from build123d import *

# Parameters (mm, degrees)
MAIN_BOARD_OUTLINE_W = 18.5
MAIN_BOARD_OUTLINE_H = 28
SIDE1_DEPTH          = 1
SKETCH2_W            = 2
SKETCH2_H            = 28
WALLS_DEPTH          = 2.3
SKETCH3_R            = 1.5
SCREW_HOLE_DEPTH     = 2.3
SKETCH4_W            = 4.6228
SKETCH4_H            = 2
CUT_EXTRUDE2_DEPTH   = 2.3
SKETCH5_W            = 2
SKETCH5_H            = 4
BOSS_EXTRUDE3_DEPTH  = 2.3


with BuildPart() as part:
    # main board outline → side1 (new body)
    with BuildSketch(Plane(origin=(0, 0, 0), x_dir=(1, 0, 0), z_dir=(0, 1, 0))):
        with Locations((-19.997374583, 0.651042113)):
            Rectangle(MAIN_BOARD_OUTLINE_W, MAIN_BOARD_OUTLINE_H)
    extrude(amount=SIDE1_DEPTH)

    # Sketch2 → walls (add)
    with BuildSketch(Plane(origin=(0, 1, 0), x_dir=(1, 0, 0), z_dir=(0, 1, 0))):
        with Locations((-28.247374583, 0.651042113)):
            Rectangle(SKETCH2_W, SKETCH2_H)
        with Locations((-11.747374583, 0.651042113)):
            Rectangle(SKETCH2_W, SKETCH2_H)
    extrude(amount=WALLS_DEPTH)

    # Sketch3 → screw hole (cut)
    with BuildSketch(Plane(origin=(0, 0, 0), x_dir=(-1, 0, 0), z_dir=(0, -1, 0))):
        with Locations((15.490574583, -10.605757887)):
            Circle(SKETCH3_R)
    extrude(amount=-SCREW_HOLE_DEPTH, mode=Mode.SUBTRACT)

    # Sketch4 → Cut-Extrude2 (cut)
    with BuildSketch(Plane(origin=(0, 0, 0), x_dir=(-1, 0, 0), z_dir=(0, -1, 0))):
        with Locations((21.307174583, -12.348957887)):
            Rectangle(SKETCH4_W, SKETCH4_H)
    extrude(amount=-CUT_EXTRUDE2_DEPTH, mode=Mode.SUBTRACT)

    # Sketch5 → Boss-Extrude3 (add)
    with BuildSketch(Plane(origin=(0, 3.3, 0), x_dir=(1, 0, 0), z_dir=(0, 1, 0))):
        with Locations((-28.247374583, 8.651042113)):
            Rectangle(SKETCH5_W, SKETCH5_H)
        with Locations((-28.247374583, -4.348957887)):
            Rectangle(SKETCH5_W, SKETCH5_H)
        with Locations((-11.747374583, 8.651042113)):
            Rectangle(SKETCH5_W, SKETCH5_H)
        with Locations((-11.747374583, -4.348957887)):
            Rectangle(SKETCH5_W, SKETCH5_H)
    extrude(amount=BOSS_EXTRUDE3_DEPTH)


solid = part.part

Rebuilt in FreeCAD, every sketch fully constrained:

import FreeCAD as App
import Part
import Sketcher
from FreeCAD import Vector
Q = App.Units.Quantity

doc = App.newDocument("Part")
body = doc.addObject("PartDesign::Body", "Body")

# Sketch on XZ plane
sketch1 = body.newObject("Sketcher::SketchObject", "Sketch")
sketch1.AttachmentSupport = (doc.getObject("XZ_Plane"), [""])
sketch1.MapMode = "FlatFace"
sketch1.addGeometry(Part.LineSegment(Vector(-29, -15, 0), Vector(-29, 13, 0)), False)
sketch1.addGeometry(Part.LineSegment(Vector(-29, 13, 0), Vector(-11, 13, 0)), False)
sketch1.addGeometry(Part.LineSegment(Vector(-11, 13, 0), Vector(-11, -15, 0)), False)
sketch1.addGeometry(Part.LineSegment(Vector(-11, -15, 0), Vector(-29, -15, 0)), False)
sketch1.addConstraint(Sketcher.Constraint("Coincident", 0, 2, 1, 1))
sketch1.addConstraint(Sketcher.Constraint("Coincident", 1, 2, 2, 1))
sketch1.addConstraint(Sketcher.Constraint("Coincident", 2, 2, 3, 1))
sketch1.addConstraint(Sketcher.Constraint("Coincident", 3, 2, 0, 1))
sketch1.addConstraint(Sketcher.Constraint("Vertical", 0))
sketch1.addConstraint(Sketcher.Constraint("Horizontal", 1))
sketch1.addConstraint(Sketcher.Constraint("Vertical", 2))
sketch1.addConstraint(Sketcher.Constraint("Horizontal", 3))
sketch1.addConstraint(Sketcher.Constraint("DistanceY", 0, 1, 0, 2, Q("28 mm")))
sketch1.addConstraint(Sketcher.Constraint("DistanceX", 1, 1, 1, 2, Q("18.5 mm")))
sketch1.addConstraint(Sketcher.Constraint("DistanceX", 0, 2, -1, 1, Q("29.247375 mm")))
sketch1.addConstraint(Sketcher.Constraint("DistanceY", -1, 1, 0, 2, Q("13.348958 mm")))
pad1 = body.newObject("PartDesign::Pad", "Pad")
pad1.Profile = sketch1
pad1.Length = 1
pad1.Reversed = True

# Sketch on XZ plane
sketch2 = body.newObject("Sketcher::SketchObject", "Sketch001")
sketch2.AttachmentSupport = (doc.getObject("XZ_Plane"), [""])
sketch2.MapMode = "FlatFace"
sketch2.AttachmentOffset = App.Placement(Vector(0, 0, -1), App.Rotation())
sketch2.addGeometry(Part.LineSegment(Vector(-29.2, -14.7, 0), Vector(-29.2, 13.3, 0)), False)
sketch2.addGeometry(Part.LineSegment(Vector(-29.2, 13.3, 0), Vector(-27.2, 13.3, 0)), False)
sketch2.addGeometry(Part.LineSegment(Vector(-27.2, 13.3, 0), Vector(-27.2, -14.7, 0)), False)
sketch2.addGeometry(Part.LineSegment(Vector(-27.2, -14.7, 0), Vector(-29.2, -14.7, 0)), False)
sketch2.addGeometry(Part.LineSegment(Vector(-12.7, -14.7, 0), Vector(-12.7, 13.3, 0)), False)
sketch2.addGeometry(Part.LineSegment(Vector(-12.7, 13.3, 0), Vector(-10.7, 13.3, 0)), False)
sketch2.addGeometry(Part.LineSegment(Vector(-10.7, 13.3, 0), Vector(-10.7, -14.7, 0)), False)
sketch2.addGeometry(Part.LineSegment(Vector(-10.7, -14.7, 0), Vector(-12.7, -14.7, 0)), False)
sketch2.addConstraint(Sketcher.Constraint("Coincident", 0, 2, 1, 1))
sketch2.addConstraint(Sketcher.Constraint("Coincident", 1, 2, 2, 1))
sketch2.addConstraint(Sketcher.Constraint("Coincident", 2, 2, 3, 1))
sketch2.addConstraint(Sketcher.Constraint("Coincident", 3, 2, 0, 1))
sketch2.addConstraint(Sketcher.Constraint("Coincident", 4, 2, 5, 1))
sketch2.addConstraint(Sketcher.Constraint("Coincident", 5, 2, 6, 1))
sketch2.addConstraint(Sketcher.Constraint("Coincident", 6, 2, 7, 1))
sketch2.addConstraint(Sketcher.Constraint("Coincident", 7, 2, 4, 1))
sketch2.addConstraint(Sketcher.Constraint("Vertical", 0))
sketch2.addConstraint(Sketcher.Constraint("Horizontal", 1))
sketch2.addConstraint(Sketcher.Constraint("Vertical", 2))
sketch2.addConstraint(Sketcher.Constraint("Horizontal", 3))
sketch2.addConstraint(Sketcher.Constraint("Vertical", 4))
sketch2.addConstraint(Sketcher.Constraint("Horizontal", 5))
sketch2.addConstraint(Sketcher.Constraint("Vertical", 6))
sketch2.addConstraint(Sketcher.Constraint("Horizontal", 7))
sketch2.addConstraint(Sketcher.Constraint("Horizontal", 1, 2, 4, 2))
sketch2.addConstraint(Sketcher.Constraint("Horizontal", 3, 2, 6, 2))
sketch2.addConstraint(Sketcher.Constraint("Equal", 3, 5))
sketch2.addConstraint(Sketcher.Constraint("DistanceX", 1, 1, 1, 2, Q("2 mm")))
sketch2.addConstraint(Sketcher.Constraint("DistanceY", 0, 1, 0, 2, Q("28 mm")))
sketch2.addConstraint(Sketcher.Constraint("DistanceX", 1, 2, 4, 2, Q("14.5 mm")))
sketch2.addConstraint(Sketcher.Constraint("DistanceX", 0, 2, -1, 1, Q("29.247375 mm")))
sketch2.addConstraint(Sketcher.Constraint("DistanceY", -1, 1, 0, 2, Q("13.348958 mm")))
pad2 = body.newObject("PartDesign::Pad", "Pad001")
pad2.Profile = sketch2
pad2.Length = 2.3
pad2.Reversed = True

# Sketch on XZ plane
sketch3 = body.newObject("Sketcher::SketchObject", "Sketch002")
sketch3.AttachmentSupport = (doc.getObject("XZ_Plane"), [""])
sketch3.MapMode = "FlatFace"
sketch3.addGeometry(Part.Circle(Vector(-15.5, 10.6, 0), Vector(0, 0, 1), 1.5), False)
sketch3.addConstraint(Sketcher.Constraint("Diameter", 0, Q("3 mm")))
sketch3.addConstraint(Sketcher.Constraint("DistanceX", 0, 3, -1, 1, Q("15.490575 mm")))
sketch3.addConstraint(Sketcher.Constraint("DistanceY", -1, 1, 0, 3, Q("10.605758 mm")))
pocket1 = body.newObject("PartDesign::Pocket", "Pocket")
pocket1.Profile = sketch3
pocket1.Length = 2.3

# Sketch on XZ plane
sketch4 = body.newObject("Sketcher::SketchObject", "Sketch003")
sketch4.AttachmentSupport = (doc.getObject("XZ_Plane"), [""])
sketch4.MapMode = "FlatFace"
sketch4.addGeometry(Part.LineSegment(Vector(-19, 11.3, 0), Vector(-19, 13.3, 0)), False)
sketch4.addGeometry(Part.LineSegment(Vector(-19, 13.3, 0), Vector(-23.6, 13.3, 0)), False)
sketch4.addGeometry(Part.LineSegment(Vector(-23.6, 13.3, 0), Vector(-23.6, 11.3, 0)), False)
sketch4.addGeometry(Part.LineSegment(Vector(-23.6, 11.3, 0), Vector(-19, 11.3, 0)), False)
sketch4.addConstraint(Sketcher.Constraint("Coincident", 0, 2, 1, 1))
sketch4.addConstraint(Sketcher.Constraint("Coincident", 1, 2, 2, 1))
sketch4.addConstraint(Sketcher.Constraint("Coincident", 2, 2, 3, 1))
sketch4.addConstraint(Sketcher.Constraint("Coincident", 3, 2, 0, 1))
sketch4.addConstraint(Sketcher.Constraint("Vertical", 0))
sketch4.addConstraint(Sketcher.Constraint("Horizontal", 1))
sketch4.addConstraint(Sketcher.Constraint("Vertical", 2))
sketch4.addConstraint(Sketcher.Constraint("Horizontal", 3))
sketch4.addConstraint(Sketcher.Constraint("DistanceY", 0, 1, 0, 2, Q("2 mm")))
sketch4.addConstraint(Sketcher.Constraint("DistanceX", 1, 2, 1, 1, Q("4.6228 mm")))
sketch4.addConstraint(Sketcher.Constraint("DistanceX", 0, 2, -1, 1, Q("18.995775 mm")))
sketch4.addConstraint(Sketcher.Constraint("DistanceY", -1, 1, 0, 2, Q("13.348958 mm")))
pocket2 = body.newObject("PartDesign::Pocket", "Pocket001")
pocket2.Profile = sketch4
pocket2.Length = 2.3

# Sketch on XZ plane
sketch5 = body.newObject("Sketcher::SketchObject", "Sketch004")
sketch5.AttachmentSupport = (doc.getObject("XZ_Plane"), [""])
sketch5.MapMode = "FlatFace"
sketch5.AttachmentOffset = App.Placement(Vector(0, 0, -3.3), App.Rotation())
sketch5.addGeometry(Part.LineSegment(Vector(-29.2, -10.7, 0), Vector(-29.2, -6.7, 0)), False)
sketch5.addGeometry(Part.LineSegment(Vector(-29.2, -6.7, 0), Vector(-27.2, -6.7, 0)), False)
sketch5.addGeometry(Part.LineSegment(Vector(-27.2, -6.7, 0), Vector(-27.2, -10.7, 0)), False)
sketch5.addGeometry(Part.LineSegment(Vector(-27.2, -10.7, 0), Vector(-29.2, -10.7, 0)), False)
sketch5.addGeometry(Part.LineSegment(Vector(-29.2, 2.3, 0), Vector(-29.2, 6.3, 0)), False)
sketch5.addGeometry(Part.LineSegment(Vector(-29.2, 6.3, 0), Vector(-27.2, 6.3, 0)), False)
sketch5.addGeometry(Part.LineSegment(Vector(-27.2, 6.3, 0), Vector(-27.2, 2.3, 0)), False)
sketch5.addGeometry(Part.LineSegment(Vector(-27.2, 2.3, 0), Vector(-29.2, 2.3, 0)), False)
sketch5.addGeometry(Part.LineSegment(Vector(-12.7, -10.7, 0), Vector(-12.7, -6.7, 0)), False)
sketch5.addGeometry(Part.LineSegment(Vector(-12.7, -6.7, 0), Vector(-10.7, -6.7, 0)), False)
sketch5.addGeometry(Part.LineSegment(Vector(-10.7, -6.7, 0), Vector(-10.7, -10.7, 0)), False)
sketch5.addGeometry(Part.LineSegment(Vector(-10.7, -10.7, 0), Vector(-12.7, -10.7, 0)), False)
sketch5.addGeometry(Part.LineSegment(Vector(-12.7, 2.3, 0), Vector(-12.7, 6.3, 0)), False)
sketch5.addGeometry(Part.LineSegment(Vector(-12.7, 6.3, 0), Vector(-10.7, 6.3, 0)), False)
sketch5.addGeometry(Part.LineSegment(Vector(-10.7, 6.3, 0), Vector(-10.7, 2.3, 0)), False)
sketch5.addGeometry(Part.LineSegment(Vector(-10.7, 2.3, 0), Vector(-12.7, 2.3, 0)), False)
sketch5.addConstraint(Sketcher.Constraint("Coincident", 0, 2, 1, 1))
sketch5.addConstraint(Sketcher.Constraint("Coincident", 1, 2, 2, 1))
sketch5.addConstraint(Sketcher.Constraint("Coincident", 2, 2, 3, 1))
sketch5.addConstraint(Sketcher.Constraint("Coincident", 3, 2, 0, 1))
sketch5.addConstraint(Sketcher.Constraint("Coincident", 4, 2, 5, 1))
sketch5.addConstraint(Sketcher.Constraint("Coincident", 5, 2, 6, 1))
sketch5.addConstraint(Sketcher.Constraint("Coincident", 6, 2, 7, 1))
sketch5.addConstraint(Sketcher.Constraint("Coincident", 7, 2, 4, 1))
sketch5.addConstraint(Sketcher.Constraint("Coincident", 8, 2, 9, 1))
sketch5.addConstraint(Sketcher.Constraint("Coincident", 9, 2, 10, 1))
sketch5.addConstraint(Sketcher.Constraint("Coincident", 10, 2, 11, 1))
sketch5.addConstraint(Sketcher.Constraint("Coincident", 11, 2, 8, 1))
sketch5.addConstraint(Sketcher.Constraint("Coincident", 12, 2, 13, 1))
sketch5.addConstraint(Sketcher.Constraint("Coincident", 13, 2, 14, 1))
sketch5.addConstraint(Sketcher.Constraint("Coincident", 14, 2, 15, 1))
sketch5.addConstraint(Sketcher.Constraint("Coincident", 15, 2, 12, 1))
sketch5.addConstraint(Sketcher.Constraint("Vertical", 0))
sketch5.addConstraint(Sketcher.Constraint("Horizontal", 1))
sketch5.addConstraint(Sketcher.Constraint("Vertical", 2))
sketch5.addConstraint(Sketcher.Constraint("Horizontal", 3))
sketch5.addConstraint(Sketcher.Constraint("Vertical", 4))
sketch5.addConstraint(Sketcher.Constraint("Horizontal", 5))
sketch5.addConstraint(Sketcher.Constraint("Vertical", 6))
sketch5.addConstraint(Sketcher.Constraint("Horizontal", 7))
sketch5.addConstraint(Sketcher.Constraint("Vertical", 8))
sketch5.addConstraint(Sketcher.Constraint("Horizontal", 9))
sketch5.addConstraint(Sketcher.Constraint("Vertical", 10))
sketch5.addConstraint(Sketcher.Constraint("Horizontal", 11))
sketch5.addConstraint(Sketcher.Constraint("Vertical", 12))
sketch5.addConstraint(Sketcher.Constraint("Horizontal", 13))
sketch5.addConstraint(Sketcher.Constraint("Vertical", 14))
sketch5.addConstraint(Sketcher.Constraint("Horizontal", 15))
sketch5.addConstraint(Sketcher.Constraint("Horizontal", 1, 2, 8, 2))
sketch5.addConstraint(Sketcher.Constraint("Horizontal", 3, 2, 10, 2))
sketch5.addConstraint(Sketcher.Constraint("Horizontal", 5, 2, 12, 2))
sketch5.addConstraint(Sketcher.Constraint("Horizontal", 7, 2, 14, 2))
sketch5.addConstraint(Sketcher.Constraint("Vertical", 3, 2, 4, 2))
sketch5.addConstraint(Sketcher.Constraint("Vertical", 2, 2, 5, 2))
sketch5.addConstraint(Sketcher.Constraint("Vertical", 11, 2, 12, 2))
sketch5.addConstraint(Sketcher.Constraint("Vertical", 10, 2, 13, 2))
sketch5.addConstraint(Sketcher.Constraint("Equal", 7, 9))
sketch5.addConstraint(Sketcher.Constraint("Equal", 2, 4))
sketch5.addConstraint(Sketcher.Constraint("DistanceX", 1, 1, 1, 2, Q("2 mm")))
sketch5.addConstraint(Sketcher.Constraint("DistanceY", 0, 1, 0, 2, Q("4 mm")))
sketch5.addConstraint(Sketcher.Constraint("DistanceY", 0, 2, 4, 2, Q("13 mm")))
sketch5.addConstraint(Sketcher.Constraint("DistanceX", 1, 2, 8, 2, Q("14.5 mm")))
sketch5.addConstraint(Sketcher.Constraint("DistanceX", 0, 2, -1, 1, Q("29.247375 mm")))
sketch5.addConstraint(Sketcher.Constraint("DistanceY", 0, 2, -1, 1, Q("6.651042 mm")))
pad3 = body.newObject("PartDesign::Pad", "Pad002")
pad3.Profile = sketch5
pad3.Length = 2.3
pad3.Reversed = True

doc.recompute()
